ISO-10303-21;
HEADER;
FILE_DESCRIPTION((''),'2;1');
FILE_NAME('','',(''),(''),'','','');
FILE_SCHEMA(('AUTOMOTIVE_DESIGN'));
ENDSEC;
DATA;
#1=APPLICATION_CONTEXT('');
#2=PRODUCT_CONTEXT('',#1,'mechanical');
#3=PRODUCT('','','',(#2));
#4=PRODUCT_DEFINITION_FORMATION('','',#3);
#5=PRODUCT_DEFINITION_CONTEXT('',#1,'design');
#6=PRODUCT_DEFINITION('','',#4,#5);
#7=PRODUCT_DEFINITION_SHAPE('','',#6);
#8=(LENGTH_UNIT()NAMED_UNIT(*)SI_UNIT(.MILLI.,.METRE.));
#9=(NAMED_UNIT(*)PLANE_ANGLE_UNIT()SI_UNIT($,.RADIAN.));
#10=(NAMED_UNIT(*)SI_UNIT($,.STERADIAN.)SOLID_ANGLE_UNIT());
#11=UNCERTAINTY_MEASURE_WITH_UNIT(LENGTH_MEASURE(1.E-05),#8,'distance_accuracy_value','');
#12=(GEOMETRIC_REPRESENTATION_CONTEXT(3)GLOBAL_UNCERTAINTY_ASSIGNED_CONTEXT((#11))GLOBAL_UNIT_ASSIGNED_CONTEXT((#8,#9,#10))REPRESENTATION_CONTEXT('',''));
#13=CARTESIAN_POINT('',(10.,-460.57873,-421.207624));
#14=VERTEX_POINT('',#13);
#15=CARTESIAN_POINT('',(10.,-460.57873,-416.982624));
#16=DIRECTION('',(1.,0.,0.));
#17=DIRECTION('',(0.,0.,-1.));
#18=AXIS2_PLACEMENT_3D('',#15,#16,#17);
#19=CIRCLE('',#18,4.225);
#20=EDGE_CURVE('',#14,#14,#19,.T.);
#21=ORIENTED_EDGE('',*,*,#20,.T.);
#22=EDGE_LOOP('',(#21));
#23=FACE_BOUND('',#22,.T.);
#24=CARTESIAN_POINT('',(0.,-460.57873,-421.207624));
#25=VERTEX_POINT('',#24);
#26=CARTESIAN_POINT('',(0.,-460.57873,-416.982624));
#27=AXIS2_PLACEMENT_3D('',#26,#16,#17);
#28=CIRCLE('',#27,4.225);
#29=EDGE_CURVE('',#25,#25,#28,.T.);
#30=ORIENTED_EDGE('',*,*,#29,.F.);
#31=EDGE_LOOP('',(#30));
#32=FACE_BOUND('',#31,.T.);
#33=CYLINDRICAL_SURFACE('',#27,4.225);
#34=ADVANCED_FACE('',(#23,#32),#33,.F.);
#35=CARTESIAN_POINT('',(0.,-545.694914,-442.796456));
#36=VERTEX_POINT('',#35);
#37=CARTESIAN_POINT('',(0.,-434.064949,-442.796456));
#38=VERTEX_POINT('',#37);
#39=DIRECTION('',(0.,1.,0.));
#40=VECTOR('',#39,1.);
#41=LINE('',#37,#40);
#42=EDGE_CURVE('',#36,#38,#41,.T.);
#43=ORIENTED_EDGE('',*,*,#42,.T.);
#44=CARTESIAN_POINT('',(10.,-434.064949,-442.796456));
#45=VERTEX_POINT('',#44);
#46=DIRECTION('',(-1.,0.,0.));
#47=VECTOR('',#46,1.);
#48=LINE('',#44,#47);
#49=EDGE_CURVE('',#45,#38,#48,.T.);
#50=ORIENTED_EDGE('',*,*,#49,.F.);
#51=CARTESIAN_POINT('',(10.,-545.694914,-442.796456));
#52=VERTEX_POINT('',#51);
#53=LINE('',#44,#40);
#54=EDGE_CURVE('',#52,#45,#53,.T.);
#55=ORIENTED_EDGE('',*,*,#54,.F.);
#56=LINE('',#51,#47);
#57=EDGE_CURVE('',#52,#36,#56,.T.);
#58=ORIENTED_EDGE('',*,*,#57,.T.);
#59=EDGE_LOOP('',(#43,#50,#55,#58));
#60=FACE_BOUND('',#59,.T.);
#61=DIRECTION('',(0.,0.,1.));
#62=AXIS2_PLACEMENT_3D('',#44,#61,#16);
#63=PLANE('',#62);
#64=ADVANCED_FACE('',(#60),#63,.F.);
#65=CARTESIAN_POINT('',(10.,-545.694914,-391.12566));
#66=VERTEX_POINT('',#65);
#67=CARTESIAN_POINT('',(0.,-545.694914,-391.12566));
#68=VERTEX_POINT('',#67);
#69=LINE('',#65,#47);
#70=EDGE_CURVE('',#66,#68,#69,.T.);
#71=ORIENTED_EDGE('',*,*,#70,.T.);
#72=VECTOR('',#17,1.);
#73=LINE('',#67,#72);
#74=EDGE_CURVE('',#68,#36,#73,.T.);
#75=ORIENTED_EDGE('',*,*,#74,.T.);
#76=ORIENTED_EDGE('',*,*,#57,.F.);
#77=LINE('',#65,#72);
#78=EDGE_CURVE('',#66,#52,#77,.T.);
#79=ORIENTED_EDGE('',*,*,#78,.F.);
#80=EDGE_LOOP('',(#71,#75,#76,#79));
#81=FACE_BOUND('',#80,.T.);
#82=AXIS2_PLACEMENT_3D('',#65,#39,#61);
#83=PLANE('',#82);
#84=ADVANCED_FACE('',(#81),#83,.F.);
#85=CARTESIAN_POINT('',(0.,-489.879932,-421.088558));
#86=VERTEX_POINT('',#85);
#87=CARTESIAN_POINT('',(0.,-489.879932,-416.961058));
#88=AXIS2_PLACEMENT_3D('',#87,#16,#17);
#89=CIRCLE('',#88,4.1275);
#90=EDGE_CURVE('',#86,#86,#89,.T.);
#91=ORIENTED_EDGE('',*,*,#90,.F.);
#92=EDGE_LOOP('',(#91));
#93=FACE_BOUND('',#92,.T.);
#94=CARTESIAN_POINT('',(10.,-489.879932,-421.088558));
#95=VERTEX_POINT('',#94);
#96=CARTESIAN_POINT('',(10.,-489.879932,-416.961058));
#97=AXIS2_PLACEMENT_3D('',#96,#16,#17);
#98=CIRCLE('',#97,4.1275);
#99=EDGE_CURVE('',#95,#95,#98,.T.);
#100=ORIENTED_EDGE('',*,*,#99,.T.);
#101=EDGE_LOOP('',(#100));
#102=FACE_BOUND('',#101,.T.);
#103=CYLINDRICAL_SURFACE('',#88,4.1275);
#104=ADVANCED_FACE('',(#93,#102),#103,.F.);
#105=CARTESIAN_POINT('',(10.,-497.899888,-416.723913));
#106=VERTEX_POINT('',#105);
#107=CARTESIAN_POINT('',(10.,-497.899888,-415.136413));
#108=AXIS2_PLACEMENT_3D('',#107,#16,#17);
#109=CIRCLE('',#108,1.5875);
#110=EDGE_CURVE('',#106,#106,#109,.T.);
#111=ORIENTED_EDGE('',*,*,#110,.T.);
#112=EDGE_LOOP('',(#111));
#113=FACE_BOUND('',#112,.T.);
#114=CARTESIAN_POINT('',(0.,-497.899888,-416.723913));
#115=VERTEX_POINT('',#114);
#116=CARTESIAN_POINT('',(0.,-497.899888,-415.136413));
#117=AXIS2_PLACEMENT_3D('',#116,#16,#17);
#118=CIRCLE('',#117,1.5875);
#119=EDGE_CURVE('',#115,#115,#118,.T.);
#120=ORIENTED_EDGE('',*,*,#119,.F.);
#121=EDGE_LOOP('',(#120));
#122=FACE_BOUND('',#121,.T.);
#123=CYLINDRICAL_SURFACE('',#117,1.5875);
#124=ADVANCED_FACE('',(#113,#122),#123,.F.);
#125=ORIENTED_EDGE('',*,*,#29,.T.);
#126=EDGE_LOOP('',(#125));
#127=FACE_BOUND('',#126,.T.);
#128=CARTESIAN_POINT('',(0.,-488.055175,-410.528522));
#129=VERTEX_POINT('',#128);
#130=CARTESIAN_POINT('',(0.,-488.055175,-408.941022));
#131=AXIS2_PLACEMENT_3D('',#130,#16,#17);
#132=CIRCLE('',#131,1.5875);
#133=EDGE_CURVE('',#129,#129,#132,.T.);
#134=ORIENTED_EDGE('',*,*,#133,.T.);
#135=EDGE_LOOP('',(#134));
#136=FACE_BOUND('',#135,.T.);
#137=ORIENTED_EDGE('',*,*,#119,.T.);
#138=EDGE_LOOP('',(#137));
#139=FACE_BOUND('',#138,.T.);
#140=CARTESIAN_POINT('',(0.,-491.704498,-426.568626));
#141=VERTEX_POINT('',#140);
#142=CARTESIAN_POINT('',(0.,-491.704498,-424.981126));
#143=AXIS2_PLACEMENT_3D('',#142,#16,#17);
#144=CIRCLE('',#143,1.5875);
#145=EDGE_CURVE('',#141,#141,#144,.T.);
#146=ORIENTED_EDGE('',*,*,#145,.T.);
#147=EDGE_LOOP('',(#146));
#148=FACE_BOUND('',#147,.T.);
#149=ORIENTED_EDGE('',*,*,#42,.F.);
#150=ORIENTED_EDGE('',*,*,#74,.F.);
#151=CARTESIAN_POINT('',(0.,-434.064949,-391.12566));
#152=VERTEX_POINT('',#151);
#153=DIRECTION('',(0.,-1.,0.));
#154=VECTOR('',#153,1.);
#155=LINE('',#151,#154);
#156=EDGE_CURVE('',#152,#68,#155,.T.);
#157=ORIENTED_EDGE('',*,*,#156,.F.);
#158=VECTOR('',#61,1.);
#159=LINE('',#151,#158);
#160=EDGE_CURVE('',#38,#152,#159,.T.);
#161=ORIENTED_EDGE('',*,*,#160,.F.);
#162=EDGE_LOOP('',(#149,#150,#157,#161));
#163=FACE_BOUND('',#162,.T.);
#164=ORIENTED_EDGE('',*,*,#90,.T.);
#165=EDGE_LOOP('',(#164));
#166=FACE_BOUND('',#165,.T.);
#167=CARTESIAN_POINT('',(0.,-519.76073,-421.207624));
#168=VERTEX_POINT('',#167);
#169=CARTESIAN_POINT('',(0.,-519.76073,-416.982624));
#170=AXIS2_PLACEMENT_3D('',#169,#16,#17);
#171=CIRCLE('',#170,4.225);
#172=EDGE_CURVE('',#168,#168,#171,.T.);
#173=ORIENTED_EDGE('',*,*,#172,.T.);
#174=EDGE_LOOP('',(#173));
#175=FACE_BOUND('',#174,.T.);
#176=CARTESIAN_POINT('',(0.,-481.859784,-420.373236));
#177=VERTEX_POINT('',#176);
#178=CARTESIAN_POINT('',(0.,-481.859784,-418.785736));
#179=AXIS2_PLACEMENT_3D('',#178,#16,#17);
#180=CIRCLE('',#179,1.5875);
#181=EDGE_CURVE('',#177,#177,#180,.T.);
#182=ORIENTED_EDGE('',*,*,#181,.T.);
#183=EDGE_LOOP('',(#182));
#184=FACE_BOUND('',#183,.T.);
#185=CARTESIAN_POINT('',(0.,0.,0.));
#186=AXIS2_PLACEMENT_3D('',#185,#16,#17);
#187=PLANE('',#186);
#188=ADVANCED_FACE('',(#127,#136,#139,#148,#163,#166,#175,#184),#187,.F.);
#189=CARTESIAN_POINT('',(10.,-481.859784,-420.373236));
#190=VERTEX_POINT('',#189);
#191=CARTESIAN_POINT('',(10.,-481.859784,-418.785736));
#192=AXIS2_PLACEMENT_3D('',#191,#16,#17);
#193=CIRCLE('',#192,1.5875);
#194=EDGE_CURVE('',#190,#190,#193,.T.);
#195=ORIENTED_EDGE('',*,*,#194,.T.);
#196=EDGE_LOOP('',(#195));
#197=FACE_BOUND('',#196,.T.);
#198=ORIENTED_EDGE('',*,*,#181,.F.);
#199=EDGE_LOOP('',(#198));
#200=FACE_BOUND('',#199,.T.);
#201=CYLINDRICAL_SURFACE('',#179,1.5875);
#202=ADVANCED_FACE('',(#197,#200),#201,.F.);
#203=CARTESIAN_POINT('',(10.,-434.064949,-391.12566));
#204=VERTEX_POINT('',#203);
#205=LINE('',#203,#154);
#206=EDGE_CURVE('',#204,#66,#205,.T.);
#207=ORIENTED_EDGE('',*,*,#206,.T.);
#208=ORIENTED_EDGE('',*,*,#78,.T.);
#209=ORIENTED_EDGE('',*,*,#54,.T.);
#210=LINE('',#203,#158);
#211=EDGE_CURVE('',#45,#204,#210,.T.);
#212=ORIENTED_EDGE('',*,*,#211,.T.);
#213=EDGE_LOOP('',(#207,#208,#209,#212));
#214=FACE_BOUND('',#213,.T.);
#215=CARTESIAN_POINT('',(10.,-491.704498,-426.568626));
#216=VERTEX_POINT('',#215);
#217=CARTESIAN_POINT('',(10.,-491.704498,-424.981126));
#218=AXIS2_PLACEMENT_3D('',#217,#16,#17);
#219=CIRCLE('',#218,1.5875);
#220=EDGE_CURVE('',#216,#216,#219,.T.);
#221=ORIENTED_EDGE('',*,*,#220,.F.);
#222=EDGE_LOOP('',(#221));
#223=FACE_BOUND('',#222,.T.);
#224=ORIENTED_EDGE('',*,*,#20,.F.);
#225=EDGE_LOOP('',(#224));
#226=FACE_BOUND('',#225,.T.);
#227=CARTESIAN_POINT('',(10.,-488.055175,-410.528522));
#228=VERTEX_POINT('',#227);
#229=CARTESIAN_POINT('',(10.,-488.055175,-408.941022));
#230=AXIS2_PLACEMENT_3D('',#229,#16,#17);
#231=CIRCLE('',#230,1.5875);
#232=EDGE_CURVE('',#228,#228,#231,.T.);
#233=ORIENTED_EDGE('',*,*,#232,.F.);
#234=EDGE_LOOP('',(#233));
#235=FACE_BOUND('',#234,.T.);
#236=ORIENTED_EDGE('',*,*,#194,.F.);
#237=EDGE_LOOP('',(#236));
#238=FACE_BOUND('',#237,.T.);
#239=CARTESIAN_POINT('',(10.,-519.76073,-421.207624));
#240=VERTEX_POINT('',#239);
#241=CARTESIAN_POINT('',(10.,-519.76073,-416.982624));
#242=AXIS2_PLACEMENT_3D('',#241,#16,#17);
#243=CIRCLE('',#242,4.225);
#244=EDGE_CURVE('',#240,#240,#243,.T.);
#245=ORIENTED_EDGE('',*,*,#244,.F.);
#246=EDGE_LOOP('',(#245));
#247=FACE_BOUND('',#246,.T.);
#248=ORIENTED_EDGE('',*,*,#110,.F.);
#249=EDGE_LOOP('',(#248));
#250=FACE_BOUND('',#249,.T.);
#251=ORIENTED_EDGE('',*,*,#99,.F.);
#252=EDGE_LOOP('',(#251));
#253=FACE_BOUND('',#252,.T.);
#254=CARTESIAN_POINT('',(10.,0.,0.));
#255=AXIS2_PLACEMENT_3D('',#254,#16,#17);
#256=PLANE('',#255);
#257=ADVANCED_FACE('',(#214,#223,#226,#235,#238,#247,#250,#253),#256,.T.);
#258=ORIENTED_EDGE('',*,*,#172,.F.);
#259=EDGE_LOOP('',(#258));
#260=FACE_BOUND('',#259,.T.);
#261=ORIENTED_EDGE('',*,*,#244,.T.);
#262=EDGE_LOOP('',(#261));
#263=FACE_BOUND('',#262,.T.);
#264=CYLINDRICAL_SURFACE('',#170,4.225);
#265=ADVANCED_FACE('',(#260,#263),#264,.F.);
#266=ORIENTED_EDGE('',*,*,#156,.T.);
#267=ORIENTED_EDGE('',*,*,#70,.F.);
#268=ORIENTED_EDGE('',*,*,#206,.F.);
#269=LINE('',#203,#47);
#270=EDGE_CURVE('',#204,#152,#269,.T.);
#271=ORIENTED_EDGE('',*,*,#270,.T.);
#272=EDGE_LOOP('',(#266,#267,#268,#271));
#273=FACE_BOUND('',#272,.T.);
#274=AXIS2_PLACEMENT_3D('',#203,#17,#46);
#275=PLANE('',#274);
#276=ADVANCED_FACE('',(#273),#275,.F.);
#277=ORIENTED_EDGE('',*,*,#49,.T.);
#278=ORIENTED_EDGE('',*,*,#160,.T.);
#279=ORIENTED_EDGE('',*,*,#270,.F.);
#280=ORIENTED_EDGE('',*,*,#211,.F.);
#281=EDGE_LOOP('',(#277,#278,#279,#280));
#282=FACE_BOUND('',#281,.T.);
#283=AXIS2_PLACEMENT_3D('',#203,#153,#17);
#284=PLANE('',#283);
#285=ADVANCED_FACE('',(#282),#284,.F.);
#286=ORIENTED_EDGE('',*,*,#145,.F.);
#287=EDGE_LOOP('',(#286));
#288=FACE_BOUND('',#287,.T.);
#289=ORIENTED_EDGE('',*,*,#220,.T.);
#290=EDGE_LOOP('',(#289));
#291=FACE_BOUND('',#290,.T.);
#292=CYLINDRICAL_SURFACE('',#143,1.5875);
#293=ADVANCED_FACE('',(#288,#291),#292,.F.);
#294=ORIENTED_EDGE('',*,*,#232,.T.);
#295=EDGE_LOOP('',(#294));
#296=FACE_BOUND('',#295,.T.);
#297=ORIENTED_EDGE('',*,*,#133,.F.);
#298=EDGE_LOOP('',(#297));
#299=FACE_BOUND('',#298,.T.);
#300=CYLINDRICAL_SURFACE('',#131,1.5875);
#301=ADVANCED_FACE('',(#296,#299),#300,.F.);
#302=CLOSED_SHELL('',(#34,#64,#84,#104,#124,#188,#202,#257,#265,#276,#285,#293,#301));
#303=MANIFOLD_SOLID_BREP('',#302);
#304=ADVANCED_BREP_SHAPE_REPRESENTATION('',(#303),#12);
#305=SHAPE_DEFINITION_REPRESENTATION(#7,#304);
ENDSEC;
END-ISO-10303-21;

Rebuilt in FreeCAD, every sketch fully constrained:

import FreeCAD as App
import Part
import Sketcher

V = App.Vector


def add_polygon(sketch, points):
    """Adds a closed chain of lines whose ends are joined by coincident constraints."""
    first, n = sketch.GeometryCount, len(points)
    for a, b in zip(points, points[1:] + points[:1]):
        sketch.addGeometry(Part.LineSegment(App.Vector(*a, 0), App.Vector(*b, 0)), False)
    for i in range(n):
        sketch.addConstraint(Sketcher.Constraint("Coincident", first + i, 2, first + (i + 1) % n, 1))

doc = App.newDocument("Part")
body = doc.addObject("PartDesign::Body", "Body")

# Sketch on YZ plane
sketch1 = body.newObject("Sketcher::SketchObject", "Sketch")
sketch1.AttachmentSupport = (doc.getObject("YZ_Plane"), [""])
sketch1.MapMode = "FlatFace"
add_polygon(sketch1, [(-434, -391), (-546, -391), (-546, -443), (-434, -443)])  # lines 0-3
sketch1.addConstraint([
    Sketcher.Constraint("Horizontal", 0),
    Sketcher.Constraint("Vertical", 1),
    Sketcher.Constraint("Horizontal", 2),
    Sketcher.Constraint("Vertical", 3),
    Sketcher.Constraint("DistanceX", 0, 2, 0, 1, 111.629966),
    Sketcher.Constraint("DistanceY", 1, 2, 1, 1, 51.670796),
    Sketcher.Constraint("DistanceY", 0, 2, -1, 1, 391.12566),
    Sketcher.Constraint("DistanceX", 2, 2, -1, 1, 434.064949),
])
pad1 = body.newObject("PartDesign::Pad", "Pad")
pad1.Profile = sketch1
pad1.Length = 10

# Sketch on YZ plane
sketch2 = body.newObject("Sketcher::SketchObject", "Sketch001")
sketch2.AttachmentSupport = (doc.getObject("YZ_Plane"), [""])
sketch2.MapMode = "FlatFace"
sketch2.AttachmentOffset = App.Placement(V(0, 0, 10), App.Rotation())
sketch2.addGeometry([
    Part.Circle(V(-460.6, -417, 0), V(0, 0, 1), 4.2),
    Part.Circle(V(-519.8, -417, 0), V(0, 0, 1), 4.2),
    Part.Circle(V(-489.9, -417, 0), V(0, 0, 1), 4.1),
], False)
sketch2.addConstraint([
    Sketcher.Constraint("Equal", 0, 1),
    Sketcher.Constraint("Horizontal", 0, 3, 1, 3),
    Sketcher.Constraint("Diameter", 0, 8.45),
    Sketcher.Constraint("Diameter", 2, 8.255),
    Sketcher.Constraint("DistanceX", 1, 3, 0, 3, 59.182),
    Sketcher.Constraint("DistanceX", 2, 3, 0, 3, 29.301201),
    Sketcher.Constraint("DistanceX", 0, 3, -1, 1, 460.57873),
    Sketcher.Constraint("DistanceY", 2, 3, -1, 1, 416.961058),
    Sketcher.Constraint("DistanceY", 0, 3, -1, 1, 416.982624),
])
pocket1 = body.newObject("PartDesign::Pocket", "Pocket")
pocket1.Profile = sketch2
pocket1.Type = "ThroughAll"

# Sketch on YZ plane
sketch3 = body.newObject("Sketcher::SketchObject", "Sketch002")
sketch3.AttachmentSupport = (doc.getObject("YZ_Plane"), [""])
sketch3.MapMode = "FlatFace"
sketch3.AttachmentOffset = App.Placement(V(0, 0, 10), App.Rotation())
sketch3.addGeometry([
    Part.Circle(V(-481.9, -418.8, 0), V(0, 0, 1), 1.6),
    Part.Circle(V(-491.7, -425, 0), V(0, 0, 1), 1.6),
    Part.Circle(V(-497.9, -415.1, 0), V(0, 0, 1), 1.6),
    Part.Circle(V(-488.1, -408.9, 0), V(0, 0, 1), 1.6),
], False)
sketch3.addConstraint([
    Sketcher.Constraint("Equal", 0, 1),
    Sketcher.Constraint("Equal", 1, 2),
    Sketcher.Constraint("Equal", 2, 3),
    Sketcher.Constraint("Diameter", 0, 3.175),
    Sketcher.Constraint("DistanceX", 2, 3, -1, 1, 497.899888),
    Sketcher.Constraint("DistanceY", 1, 3, 0, 3, 6.195391),
    Sketcher.Constraint("DistanceX", 2, 3, 1, 3, 6.195391),
    Sketcher.Constraint("DistanceY", 2, 3, 3, 3, 6.195391),
    Sketcher.Constraint("DistanceX", 3, 3, 0, 3, 6.195391),
    Sketcher.Constraint("DistanceX", 0, 3, -1, 1, 481.859784),
    Sketcher.Constraint("DistanceY", 0, 3, -1, 1, 418.785736),
    Sketcher.Constraint("DistanceY", 2, 3, -1, 1, 415.136413),
])
pocket2 = body.newObject("PartDesign::Pocket", "Pocket001")
pocket2.Profile = sketch3
pocket2.Type = "ThroughAll"

doc.recompute()
